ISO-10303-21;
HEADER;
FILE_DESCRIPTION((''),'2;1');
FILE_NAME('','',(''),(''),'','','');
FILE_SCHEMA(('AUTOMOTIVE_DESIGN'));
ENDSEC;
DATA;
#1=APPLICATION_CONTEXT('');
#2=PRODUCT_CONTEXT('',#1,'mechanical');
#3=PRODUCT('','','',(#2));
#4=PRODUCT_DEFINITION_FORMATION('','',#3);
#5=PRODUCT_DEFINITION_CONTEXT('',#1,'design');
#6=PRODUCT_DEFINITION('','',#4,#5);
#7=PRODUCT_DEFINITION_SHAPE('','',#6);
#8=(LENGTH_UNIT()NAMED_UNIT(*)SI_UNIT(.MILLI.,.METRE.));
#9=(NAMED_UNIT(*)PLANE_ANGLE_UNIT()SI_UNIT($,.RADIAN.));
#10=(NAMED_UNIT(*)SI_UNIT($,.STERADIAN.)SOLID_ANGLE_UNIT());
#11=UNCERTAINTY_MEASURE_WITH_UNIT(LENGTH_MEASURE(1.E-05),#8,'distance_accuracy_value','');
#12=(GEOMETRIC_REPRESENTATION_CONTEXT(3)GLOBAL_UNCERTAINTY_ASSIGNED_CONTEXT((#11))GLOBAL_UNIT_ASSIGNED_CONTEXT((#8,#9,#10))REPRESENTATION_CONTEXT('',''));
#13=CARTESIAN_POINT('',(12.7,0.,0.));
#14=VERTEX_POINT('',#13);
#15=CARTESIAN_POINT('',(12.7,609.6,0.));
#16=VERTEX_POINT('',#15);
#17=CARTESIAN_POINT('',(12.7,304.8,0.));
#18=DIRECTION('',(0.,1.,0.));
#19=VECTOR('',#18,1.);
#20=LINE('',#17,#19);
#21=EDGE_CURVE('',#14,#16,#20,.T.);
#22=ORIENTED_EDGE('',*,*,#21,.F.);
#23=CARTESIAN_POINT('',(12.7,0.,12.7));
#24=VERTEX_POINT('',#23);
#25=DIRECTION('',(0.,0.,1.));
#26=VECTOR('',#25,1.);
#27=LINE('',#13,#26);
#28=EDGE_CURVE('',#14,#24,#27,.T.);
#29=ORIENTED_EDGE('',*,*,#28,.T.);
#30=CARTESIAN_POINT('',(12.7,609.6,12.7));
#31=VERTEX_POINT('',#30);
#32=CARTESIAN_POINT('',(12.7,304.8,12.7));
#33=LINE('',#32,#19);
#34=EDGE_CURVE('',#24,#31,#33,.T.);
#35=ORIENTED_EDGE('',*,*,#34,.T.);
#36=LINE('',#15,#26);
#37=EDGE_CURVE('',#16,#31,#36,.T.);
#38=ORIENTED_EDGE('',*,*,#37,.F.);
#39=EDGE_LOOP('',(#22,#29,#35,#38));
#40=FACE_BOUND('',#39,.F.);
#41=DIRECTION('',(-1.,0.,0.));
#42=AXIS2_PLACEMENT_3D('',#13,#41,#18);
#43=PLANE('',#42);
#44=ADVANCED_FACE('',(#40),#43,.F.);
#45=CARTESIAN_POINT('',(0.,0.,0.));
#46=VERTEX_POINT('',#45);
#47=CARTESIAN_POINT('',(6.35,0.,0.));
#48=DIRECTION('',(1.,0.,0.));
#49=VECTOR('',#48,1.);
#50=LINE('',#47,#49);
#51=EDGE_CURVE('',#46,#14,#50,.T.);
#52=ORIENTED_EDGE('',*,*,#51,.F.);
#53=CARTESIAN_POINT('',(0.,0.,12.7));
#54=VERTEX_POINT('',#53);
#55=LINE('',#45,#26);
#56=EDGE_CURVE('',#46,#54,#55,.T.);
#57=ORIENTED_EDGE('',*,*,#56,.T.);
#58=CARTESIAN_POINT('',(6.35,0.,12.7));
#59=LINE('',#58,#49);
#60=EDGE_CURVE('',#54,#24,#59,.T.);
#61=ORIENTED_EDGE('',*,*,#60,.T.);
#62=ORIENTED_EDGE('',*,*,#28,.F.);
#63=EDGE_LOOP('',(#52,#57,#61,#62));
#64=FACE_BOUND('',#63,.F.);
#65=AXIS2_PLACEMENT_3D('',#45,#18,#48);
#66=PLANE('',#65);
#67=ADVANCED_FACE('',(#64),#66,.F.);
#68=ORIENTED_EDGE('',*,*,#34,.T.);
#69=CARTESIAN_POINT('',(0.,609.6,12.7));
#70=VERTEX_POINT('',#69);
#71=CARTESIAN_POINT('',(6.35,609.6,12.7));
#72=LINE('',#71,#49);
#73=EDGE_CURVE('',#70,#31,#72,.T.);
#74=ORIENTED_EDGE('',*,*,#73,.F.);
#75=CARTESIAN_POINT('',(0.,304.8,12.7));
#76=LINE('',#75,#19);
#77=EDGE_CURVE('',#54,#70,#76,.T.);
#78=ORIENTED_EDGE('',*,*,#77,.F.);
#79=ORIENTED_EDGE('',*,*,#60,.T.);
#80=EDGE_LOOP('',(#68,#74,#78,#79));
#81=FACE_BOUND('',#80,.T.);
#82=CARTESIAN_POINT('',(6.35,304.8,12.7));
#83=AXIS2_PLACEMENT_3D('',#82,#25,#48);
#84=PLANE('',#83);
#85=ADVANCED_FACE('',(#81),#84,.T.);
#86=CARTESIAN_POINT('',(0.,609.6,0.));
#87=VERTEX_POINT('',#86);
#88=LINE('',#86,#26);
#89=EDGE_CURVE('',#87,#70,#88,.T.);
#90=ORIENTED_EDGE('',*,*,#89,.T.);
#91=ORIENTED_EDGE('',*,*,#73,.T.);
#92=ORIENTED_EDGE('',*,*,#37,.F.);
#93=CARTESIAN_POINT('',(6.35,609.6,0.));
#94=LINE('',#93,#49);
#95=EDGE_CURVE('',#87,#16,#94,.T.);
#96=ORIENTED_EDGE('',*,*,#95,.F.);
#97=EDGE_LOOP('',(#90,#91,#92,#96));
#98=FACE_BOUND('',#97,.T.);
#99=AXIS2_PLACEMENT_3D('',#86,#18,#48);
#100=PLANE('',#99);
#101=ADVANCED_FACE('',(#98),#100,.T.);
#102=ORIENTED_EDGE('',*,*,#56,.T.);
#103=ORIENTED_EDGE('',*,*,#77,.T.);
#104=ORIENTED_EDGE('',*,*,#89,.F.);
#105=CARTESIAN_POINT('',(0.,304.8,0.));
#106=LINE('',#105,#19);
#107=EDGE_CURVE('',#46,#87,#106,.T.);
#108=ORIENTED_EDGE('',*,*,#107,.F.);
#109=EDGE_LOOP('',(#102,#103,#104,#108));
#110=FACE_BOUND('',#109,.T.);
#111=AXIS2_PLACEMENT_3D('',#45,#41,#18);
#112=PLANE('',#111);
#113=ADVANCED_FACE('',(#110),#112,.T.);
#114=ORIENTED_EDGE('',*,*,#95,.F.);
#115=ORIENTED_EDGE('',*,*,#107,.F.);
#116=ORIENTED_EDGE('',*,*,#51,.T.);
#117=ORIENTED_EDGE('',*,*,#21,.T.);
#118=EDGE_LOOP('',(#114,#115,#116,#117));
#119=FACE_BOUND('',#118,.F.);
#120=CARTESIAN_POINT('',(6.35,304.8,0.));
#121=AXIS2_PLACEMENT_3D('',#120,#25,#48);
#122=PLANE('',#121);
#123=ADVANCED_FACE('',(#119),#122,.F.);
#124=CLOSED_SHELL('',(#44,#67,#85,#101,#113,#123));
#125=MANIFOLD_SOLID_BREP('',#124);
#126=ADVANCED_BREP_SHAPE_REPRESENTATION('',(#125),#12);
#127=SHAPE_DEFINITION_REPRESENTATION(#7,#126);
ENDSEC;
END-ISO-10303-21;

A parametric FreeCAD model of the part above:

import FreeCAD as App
import Part
import Sketcher
Q = App.Units.Quantity

doc = App.newDocument("Part")
params = doc.addObject("Spreadsheet::Sheet", "Params")
for row, (alias, value) in enumerate([
    ("sketch1_height", "24 in"),
    ("sketch1_width", "0.5 in"),
    ("pad1_length", "0.5 in"),
], start=1):
    params.set(f"A{row}", alias)
    params.set(f"B{row}", "=" + value)
    params.setAlias(f"B{row}", alias)

body = doc.addObject("PartDesign::Body", "Body")

sketch1 = doc.addObject("Sketcher::SketchObject", "Sketch")
body.addObject(sketch1)
sketch1.AttachmentSupport = (doc.XY_Plane, [""])
sketch1.MapMode = "FlatFace"
sketch1.addGeometry([
    Part.LineSegment(App.Vector(0, 609.6, 0), App.Vector(0, 0, 0)),
    Part.LineSegment(App.Vector(0, 0, 0), App.Vector(12.7, 0, 0)),
    Part.LineSegment(App.Vector(12.7, 0, 0), App.Vector(12.7, 609.6, 0)),
    Part.LineSegment(App.Vector(12.7, 609.6, 0), App.Vector(0, 609.6, 0)),
], False)
sketch1.addConstraint([
    Sketcher.Constraint("Coincident", 0, 2, 1, 1),
    Sketcher.Constraint("Coincident", 1, 2, 2, 1),
    Sketcher.Constraint("Coincident", 2, 2, 3, 1),
    Sketcher.Constraint("Coincident", 3, 2, 0, 1),
    Sketcher.Constraint("Vertical", 0),
    Sketcher.Constraint("Horizontal", 1),
    Sketcher.Constraint("Vertical", 2),
    Sketcher.Constraint("Horizontal", 3),
    Sketcher.Constraint("Coincident", 0, 2, -1, 1),
    Sketcher.Constraint("DistanceY", 0, 2, 0, 1, Q("24 in")),
    Sketcher.Constraint("DistanceX", 1, 1, 1, 2, Q("0.5 in")),
])
sketch1.setExpression("Constraints[9]", "Params.sketch1_height")
sketch1.setExpression("Constraints[10]", "Params.sketch1_width")
pad1 = doc.addObject("PartDesign::Pad", "Pad")
body.addObject(pad1)
pad1.Profile = sketch1
pad1.setExpression("Length", "Params.pad1_length")

doc.recompute()
